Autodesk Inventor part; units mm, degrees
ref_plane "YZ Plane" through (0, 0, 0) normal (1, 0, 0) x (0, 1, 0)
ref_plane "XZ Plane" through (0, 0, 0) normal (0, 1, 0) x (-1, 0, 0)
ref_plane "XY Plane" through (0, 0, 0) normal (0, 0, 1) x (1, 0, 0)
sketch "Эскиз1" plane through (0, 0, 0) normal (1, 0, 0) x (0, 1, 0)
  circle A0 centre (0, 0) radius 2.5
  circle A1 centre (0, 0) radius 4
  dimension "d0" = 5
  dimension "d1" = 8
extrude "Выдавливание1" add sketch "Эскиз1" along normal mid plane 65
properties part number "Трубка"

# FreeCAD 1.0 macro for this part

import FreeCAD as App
import Part
import Sketcher
Q = App.Units.Quantity

doc = App.newDocument("Part")
body = doc.addObject("PartDesign::Body", "Body")

# Sketch on YZ plane
sketch1 = body.newObject("Sketcher::SketchObject", "Sketch")
sketch1.AttachmentSupport = (doc.getObject("YZ_Plane"), [""])
sketch1.MapMode = "FlatFace"
sketch1.addGeometry([
    Part.Circle(App.Vector(0, 0, 0), App.Vector(0, 0, 1), 4),
    Part.Circle(App.Vector(0, 0, 0), App.Vector(0, 0, 1), 2.5),
], False)
sketch1.addConstraint([
    Sketcher.Constraint("Coincident", 0, 3, -1, 1),
    Sketcher.Constraint("Coincident", 1, 3, -1, 1),
    Sketcher.Constraint("Diameter", 0, Q("8 mm")),
    Sketcher.Constraint("Diameter", 1, Q("5 mm")),
])
pad1 = body.newObject("PartDesign::Pad", "Pad")
pad1.Profile = sketch1
pad1.Length = 65
pad1.Midplane = True

doc.recompute()
